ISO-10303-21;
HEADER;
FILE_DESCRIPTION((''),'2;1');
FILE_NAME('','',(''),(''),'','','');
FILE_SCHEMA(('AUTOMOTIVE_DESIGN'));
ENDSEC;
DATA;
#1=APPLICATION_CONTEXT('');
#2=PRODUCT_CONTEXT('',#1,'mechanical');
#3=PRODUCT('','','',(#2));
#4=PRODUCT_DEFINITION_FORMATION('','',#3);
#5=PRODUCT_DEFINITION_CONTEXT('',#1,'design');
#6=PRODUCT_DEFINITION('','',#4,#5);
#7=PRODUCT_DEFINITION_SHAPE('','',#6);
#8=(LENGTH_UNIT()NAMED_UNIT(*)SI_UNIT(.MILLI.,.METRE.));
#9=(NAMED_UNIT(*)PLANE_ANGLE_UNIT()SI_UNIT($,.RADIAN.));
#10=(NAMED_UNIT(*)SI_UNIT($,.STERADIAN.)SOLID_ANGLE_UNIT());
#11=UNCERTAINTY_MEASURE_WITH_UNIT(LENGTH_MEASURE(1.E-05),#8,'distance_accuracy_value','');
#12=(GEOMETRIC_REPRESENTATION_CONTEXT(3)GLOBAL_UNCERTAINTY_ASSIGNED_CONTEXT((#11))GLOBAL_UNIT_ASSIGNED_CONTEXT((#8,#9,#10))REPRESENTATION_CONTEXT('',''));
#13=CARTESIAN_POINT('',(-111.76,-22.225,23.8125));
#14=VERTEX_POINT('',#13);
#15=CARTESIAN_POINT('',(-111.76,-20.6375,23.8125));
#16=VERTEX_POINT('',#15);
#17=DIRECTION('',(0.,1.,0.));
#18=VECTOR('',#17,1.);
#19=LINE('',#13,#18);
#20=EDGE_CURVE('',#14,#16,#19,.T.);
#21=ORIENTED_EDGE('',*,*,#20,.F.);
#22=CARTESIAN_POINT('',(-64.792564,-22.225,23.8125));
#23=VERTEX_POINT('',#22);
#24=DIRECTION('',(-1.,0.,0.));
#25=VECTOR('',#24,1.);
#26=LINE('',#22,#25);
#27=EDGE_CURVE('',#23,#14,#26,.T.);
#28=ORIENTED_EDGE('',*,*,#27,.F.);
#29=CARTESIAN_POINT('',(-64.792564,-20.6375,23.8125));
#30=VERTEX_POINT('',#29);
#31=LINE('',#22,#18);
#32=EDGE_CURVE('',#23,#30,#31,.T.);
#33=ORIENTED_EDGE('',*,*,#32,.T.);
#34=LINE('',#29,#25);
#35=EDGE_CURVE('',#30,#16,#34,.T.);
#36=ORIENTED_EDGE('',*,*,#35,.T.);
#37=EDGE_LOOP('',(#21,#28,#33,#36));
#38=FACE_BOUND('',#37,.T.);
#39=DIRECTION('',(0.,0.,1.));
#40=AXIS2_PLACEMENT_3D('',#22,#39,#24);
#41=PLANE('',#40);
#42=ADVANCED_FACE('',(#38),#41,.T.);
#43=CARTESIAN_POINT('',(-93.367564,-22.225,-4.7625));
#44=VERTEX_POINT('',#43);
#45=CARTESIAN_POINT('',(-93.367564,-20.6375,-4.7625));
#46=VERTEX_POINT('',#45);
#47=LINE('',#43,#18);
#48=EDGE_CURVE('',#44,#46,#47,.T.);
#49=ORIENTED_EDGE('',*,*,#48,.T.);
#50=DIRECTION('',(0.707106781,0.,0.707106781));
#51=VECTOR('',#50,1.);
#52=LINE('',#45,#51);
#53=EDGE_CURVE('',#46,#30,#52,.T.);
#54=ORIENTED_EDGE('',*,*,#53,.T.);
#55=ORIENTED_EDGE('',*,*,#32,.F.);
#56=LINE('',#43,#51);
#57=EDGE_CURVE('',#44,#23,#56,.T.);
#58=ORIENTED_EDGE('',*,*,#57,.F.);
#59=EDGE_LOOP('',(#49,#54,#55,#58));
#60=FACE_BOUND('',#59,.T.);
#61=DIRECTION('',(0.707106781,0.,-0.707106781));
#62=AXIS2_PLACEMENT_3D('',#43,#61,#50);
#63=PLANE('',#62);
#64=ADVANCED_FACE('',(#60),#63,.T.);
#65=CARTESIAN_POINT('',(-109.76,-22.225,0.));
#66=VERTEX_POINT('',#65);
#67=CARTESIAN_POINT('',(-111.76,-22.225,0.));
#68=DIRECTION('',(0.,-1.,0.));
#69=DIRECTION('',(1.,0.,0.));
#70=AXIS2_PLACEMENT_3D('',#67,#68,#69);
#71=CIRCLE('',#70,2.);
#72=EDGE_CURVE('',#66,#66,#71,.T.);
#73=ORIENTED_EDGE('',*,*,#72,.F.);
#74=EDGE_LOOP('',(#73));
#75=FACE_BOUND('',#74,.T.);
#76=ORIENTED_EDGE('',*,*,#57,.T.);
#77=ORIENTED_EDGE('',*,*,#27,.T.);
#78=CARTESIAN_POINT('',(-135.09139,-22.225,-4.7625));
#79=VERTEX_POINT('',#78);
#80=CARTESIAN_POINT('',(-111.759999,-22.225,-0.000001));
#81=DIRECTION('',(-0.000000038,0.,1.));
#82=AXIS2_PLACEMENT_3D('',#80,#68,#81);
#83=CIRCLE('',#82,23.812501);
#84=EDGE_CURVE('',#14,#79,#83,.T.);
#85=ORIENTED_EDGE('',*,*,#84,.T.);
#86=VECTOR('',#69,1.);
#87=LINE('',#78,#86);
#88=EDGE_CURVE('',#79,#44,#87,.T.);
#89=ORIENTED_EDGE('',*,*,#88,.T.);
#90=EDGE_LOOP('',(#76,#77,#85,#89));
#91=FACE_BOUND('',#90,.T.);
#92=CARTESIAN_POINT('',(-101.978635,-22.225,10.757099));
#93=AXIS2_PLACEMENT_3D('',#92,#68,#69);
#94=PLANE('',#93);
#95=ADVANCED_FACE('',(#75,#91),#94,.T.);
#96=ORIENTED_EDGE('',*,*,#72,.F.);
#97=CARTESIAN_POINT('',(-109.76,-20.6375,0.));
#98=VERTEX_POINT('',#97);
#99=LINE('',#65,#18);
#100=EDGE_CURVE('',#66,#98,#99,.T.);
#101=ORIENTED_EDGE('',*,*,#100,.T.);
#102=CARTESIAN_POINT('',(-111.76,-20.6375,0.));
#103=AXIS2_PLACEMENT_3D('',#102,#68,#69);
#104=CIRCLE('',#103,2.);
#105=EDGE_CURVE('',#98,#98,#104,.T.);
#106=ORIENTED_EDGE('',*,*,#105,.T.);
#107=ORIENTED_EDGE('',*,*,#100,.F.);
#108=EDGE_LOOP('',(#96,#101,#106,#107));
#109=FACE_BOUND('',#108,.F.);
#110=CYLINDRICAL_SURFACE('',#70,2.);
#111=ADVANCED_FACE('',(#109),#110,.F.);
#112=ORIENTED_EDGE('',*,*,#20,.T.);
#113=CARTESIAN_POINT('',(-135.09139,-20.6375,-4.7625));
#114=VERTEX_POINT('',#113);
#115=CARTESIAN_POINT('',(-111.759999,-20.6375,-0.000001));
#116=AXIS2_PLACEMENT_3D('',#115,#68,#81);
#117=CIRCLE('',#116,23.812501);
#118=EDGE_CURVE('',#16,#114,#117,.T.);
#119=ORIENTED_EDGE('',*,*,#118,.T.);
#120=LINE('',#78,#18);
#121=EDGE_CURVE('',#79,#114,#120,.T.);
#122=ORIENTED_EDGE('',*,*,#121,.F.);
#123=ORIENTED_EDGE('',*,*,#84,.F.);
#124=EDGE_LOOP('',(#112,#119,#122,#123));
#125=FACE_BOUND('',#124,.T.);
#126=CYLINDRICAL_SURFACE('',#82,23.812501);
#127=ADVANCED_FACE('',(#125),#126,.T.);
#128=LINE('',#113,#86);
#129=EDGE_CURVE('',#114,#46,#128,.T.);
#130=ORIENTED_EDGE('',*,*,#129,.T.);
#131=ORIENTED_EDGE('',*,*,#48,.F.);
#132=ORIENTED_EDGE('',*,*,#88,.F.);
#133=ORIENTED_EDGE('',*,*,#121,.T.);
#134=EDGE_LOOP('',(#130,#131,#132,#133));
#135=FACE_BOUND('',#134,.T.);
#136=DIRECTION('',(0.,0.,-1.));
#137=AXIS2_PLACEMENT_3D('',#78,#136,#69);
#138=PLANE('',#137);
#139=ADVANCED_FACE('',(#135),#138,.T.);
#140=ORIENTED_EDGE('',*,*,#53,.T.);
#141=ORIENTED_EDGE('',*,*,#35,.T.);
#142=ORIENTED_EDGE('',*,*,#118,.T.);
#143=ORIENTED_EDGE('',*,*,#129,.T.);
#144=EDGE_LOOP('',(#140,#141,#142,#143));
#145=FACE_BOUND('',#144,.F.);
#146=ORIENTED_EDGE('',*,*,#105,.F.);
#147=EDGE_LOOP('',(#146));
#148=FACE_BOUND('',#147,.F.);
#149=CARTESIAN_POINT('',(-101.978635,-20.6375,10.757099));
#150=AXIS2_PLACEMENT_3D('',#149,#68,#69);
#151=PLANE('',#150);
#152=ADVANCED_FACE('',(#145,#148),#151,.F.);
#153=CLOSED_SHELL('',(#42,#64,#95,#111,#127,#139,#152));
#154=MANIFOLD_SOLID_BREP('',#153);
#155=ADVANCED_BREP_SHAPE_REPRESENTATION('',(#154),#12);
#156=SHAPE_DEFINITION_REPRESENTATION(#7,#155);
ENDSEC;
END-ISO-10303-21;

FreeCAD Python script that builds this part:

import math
import FreeCAD as App
import Part
import Sketcher
from FreeCAD import Vector
Q = App.Units.Quantity

doc = App.newDocument("Part")
body = doc.addObject("PartDesign::Body", "Body")

# Sketch on XZ plane
sketch1 = body.newObject("Sketcher::SketchObject", "Sketch")
sketch1.AttachmentSupport = (doc.getObject("XZ_Plane"), [""])
sketch1.MapMode = "FlatFace"
sketch1.AttachmentOffset = App.Placement(Vector(0, 0, 0.875 * 25.4), App.Rotation())
sketch1.addGeometry([
    Part.LineSegment(Vector(-64.8, 23.8, 0), Vector(-111.8, 23.8, 0)),  # 0
    Part.ArcOfCircle(Part.Circle(Vector(-111.8, 0, 0), Vector(0, 0, 1), 23.8), math.radians(90), math.radians(192)),  # 1
    Part.LineSegment(Vector(-135.1, -4.8, 0), Vector(-93.4, -4.8, 0)),  # 2
    Part.LineSegment(Vector(-93.4, -4.8, 0), Vector(-64.8, 23.8, 0)),  # 3
    Part.Circle(Vector(-111.8, 0, 0), Vector(0, 0, 1), 2),  # 4
], False)
sketch1.addConstraint([
    Sketcher.Constraint("Tangent", 0, 2, 1, 1),
    Sketcher.Constraint("Coincident", 1, 2, 2, 1),
    Sketcher.Constraint("Coincident", 2, 2, 3, 1),
    Sketcher.Constraint("Coincident", 3, 2, 0, 1),
    Sketcher.Constraint("Horizontal", 0),
    Sketcher.Constraint("Horizontal", 2),
    Sketcher.Constraint("Coincident", 4, 3, 1, 3),
    Sketcher.Constraint("PointOnObject", 1, 3, -1),
    Sketcher.Constraint("Angle", 3, Q("45 deg")),
    Sketcher.Constraint("Radius", 1, Q("0.9375 in")),
    Sketcher.Constraint("DistanceX", 1, 3, -1, 1, Q("4.4 in")),
    Sketcher.Constraint("Diameter", 4, 4.0),
    Sketcher.Constraint("DistanceY", 1, 2, -1, 1, Q("0.1875 in")),
    Sketcher.Constraint("DistanceX", 0, 2, 0, 1, 46.967436),
])
pad1 = body.newObject("PartDesign::Pad", "Pad")
pad1.Profile = sketch1
pad1.Length = Q("0.0625 in")
pad1.Reversed = True

doc.recompute()
